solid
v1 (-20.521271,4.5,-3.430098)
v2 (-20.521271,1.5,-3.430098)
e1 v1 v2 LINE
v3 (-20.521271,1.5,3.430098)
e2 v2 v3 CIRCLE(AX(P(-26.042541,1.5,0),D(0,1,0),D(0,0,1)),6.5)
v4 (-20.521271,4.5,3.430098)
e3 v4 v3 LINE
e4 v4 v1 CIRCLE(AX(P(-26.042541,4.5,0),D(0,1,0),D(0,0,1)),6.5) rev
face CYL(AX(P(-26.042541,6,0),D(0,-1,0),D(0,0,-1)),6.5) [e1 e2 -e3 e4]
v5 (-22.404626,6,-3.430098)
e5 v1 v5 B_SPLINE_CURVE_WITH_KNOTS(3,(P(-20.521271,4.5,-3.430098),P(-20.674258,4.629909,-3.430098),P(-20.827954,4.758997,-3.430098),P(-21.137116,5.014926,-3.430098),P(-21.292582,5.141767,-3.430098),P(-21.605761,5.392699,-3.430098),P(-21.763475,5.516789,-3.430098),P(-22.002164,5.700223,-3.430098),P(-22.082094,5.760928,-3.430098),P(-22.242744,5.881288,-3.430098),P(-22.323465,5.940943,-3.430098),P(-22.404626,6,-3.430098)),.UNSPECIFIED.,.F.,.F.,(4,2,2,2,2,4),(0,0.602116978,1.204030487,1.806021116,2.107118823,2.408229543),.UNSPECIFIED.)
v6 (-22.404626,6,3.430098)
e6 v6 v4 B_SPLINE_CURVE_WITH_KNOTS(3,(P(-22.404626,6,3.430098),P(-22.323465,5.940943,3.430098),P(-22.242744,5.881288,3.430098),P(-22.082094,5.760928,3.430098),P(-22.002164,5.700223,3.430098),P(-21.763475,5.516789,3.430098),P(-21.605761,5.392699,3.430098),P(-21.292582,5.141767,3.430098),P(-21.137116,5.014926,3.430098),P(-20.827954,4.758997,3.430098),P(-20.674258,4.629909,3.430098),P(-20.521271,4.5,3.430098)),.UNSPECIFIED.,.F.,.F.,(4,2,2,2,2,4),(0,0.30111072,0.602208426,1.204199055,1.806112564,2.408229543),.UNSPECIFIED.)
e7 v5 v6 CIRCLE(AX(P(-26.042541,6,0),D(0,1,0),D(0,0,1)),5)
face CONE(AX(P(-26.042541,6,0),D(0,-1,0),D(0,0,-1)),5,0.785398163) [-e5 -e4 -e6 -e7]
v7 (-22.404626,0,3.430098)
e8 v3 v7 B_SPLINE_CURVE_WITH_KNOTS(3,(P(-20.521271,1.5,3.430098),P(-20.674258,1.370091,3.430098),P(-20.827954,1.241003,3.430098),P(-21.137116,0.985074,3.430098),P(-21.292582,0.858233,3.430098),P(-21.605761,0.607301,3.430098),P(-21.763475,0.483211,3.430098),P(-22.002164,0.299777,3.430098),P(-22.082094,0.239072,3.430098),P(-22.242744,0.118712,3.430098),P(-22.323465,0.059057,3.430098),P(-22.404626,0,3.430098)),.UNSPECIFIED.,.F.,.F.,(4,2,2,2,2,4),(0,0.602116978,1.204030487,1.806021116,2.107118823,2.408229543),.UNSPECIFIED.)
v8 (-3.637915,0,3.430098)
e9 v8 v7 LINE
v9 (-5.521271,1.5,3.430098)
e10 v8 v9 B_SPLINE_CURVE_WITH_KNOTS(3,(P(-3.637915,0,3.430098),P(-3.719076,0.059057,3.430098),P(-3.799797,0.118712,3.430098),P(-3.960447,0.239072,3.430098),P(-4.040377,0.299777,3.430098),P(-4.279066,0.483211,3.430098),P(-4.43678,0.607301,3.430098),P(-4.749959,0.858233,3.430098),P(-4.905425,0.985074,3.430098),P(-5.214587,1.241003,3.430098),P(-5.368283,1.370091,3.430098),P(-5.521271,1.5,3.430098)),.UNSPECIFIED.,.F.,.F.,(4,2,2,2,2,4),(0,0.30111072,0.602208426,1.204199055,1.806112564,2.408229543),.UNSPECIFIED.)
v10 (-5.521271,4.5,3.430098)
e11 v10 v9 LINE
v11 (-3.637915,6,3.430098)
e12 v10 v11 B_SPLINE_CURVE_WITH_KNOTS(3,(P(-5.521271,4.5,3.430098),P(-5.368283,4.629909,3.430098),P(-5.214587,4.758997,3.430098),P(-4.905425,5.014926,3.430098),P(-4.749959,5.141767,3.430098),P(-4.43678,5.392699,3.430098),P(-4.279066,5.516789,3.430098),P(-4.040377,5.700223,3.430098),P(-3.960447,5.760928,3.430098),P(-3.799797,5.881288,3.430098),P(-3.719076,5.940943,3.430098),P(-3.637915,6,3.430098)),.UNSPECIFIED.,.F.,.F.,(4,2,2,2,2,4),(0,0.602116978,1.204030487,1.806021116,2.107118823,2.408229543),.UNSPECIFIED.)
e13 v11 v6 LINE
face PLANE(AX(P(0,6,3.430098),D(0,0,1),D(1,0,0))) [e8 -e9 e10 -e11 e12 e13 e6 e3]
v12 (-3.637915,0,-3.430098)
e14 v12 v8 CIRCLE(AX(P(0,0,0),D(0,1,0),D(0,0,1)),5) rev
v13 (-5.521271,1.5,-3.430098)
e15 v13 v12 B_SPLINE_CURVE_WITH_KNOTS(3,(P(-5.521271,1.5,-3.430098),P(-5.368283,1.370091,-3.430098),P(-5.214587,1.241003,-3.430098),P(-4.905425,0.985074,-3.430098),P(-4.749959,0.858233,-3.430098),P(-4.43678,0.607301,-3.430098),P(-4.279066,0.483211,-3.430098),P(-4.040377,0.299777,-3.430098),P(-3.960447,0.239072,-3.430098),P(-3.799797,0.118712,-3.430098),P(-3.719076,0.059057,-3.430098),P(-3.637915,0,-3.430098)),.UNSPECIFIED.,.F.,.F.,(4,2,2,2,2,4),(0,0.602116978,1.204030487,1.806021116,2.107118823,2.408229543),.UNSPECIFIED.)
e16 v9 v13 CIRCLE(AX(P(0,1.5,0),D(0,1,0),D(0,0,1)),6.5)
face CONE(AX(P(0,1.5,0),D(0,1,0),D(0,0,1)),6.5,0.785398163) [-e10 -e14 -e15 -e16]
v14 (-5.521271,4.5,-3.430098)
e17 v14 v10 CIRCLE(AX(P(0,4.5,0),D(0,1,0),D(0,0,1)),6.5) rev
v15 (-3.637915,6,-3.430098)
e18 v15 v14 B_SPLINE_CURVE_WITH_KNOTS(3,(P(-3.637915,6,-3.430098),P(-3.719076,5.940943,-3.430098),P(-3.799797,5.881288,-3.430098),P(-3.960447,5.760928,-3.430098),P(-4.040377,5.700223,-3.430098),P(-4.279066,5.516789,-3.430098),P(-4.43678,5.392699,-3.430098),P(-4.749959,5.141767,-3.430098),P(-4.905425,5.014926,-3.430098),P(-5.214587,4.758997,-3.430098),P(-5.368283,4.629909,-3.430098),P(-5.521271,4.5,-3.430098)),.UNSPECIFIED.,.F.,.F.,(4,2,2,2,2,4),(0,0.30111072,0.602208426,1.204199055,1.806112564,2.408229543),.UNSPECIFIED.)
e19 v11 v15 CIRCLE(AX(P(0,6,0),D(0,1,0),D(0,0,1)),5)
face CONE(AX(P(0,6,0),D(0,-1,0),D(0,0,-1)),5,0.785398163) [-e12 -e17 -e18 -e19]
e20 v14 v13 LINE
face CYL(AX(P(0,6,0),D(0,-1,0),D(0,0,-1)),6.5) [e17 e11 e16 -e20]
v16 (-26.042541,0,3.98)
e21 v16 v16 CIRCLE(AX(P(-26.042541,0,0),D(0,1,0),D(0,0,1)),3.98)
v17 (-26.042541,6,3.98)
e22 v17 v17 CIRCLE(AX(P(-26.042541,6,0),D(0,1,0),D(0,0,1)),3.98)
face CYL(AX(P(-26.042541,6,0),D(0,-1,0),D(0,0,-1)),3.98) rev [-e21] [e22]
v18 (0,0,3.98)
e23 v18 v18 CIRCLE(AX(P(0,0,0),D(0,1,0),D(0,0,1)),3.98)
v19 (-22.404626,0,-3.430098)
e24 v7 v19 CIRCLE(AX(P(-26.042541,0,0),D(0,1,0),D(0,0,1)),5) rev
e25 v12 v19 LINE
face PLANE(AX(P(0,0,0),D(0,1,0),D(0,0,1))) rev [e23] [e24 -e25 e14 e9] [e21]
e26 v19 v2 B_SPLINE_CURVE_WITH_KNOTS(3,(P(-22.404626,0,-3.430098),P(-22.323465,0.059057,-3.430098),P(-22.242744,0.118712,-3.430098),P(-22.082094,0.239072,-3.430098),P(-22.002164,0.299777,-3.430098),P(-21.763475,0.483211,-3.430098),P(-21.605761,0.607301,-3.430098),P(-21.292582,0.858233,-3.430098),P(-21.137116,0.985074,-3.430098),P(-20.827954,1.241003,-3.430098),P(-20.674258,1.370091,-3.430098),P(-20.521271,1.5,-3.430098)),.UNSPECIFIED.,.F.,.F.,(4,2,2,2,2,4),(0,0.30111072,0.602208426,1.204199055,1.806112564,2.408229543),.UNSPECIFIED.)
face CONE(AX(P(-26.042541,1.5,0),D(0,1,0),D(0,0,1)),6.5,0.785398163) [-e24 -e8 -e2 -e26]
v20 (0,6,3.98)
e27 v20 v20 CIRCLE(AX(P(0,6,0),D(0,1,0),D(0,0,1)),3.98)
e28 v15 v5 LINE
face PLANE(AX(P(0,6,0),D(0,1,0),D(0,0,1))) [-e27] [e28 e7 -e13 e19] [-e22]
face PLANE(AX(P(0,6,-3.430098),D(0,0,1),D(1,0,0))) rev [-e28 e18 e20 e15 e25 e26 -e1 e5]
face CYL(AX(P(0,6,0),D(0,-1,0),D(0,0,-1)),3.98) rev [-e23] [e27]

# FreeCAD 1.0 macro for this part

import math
import FreeCAD as App
import Part
import Sketcher

V = App.Vector
Q = App.Units.Quantity


def edges_at(feature, points):
    """Names of the edges that pass closest to the given points."""
    edges = feature.Shape.Edges
    near = lambda p: min(range(len(edges)), key=lambda i: edges[i].distToShape(Part.Vertex(*p))[0])
    return sorted({f"Edge{near(p) + 1}" for p in points})

doc = App.newDocument("Part")
body = doc.addObject("PartDesign::Body", "Body")

# Sketch on XZ plane
sketch1 = body.newObject("Sketcher::SketchObject", "Sketch")
sketch1.AttachmentSupport = (doc.getObject("XZ_Plane"), [""])
sketch1.MapMode = "FlatFace"
sketch1.addGeometry([
    Part.LineSegment(V(-5.5, -3.4, 0), V(-20.5, -3.4, 0)),  # 0
    Part.ArcOfCircle(Part.Circle(V(-26, 0, 0), V(0, 0, 1), 6.5), math.radians(32), math.radians(328)),  # 1
    Part.LineSegment(V(-20.5, 3.4, 0), V(-5.5, 3.4, 0)),  # 2
    Part.ArcOfCircle(Part.Circle(V(0, 0, 0), V(0, 0, 1), 6.5), math.radians(-148), math.radians(148)),  # 3
    Part.Circle(V(-26, 0, 0), V(0, 0, 1), 4),  # 4
    Part.Circle(V(0, 0, 0), V(0, 0, 1), 4),  # 5
], False)
sketch1.addConstraint([
    Sketcher.Constraint("Coincident", 0, 2, 1, 2),
    Sketcher.Constraint("Coincident", 1, 1, 2, 1),
    Sketcher.Constraint("Coincident", 2, 2, 3, 2),
    Sketcher.Constraint("Coincident", 3, 1, 0, 1),
    Sketcher.Constraint("Horizontal", 0),
    Sketcher.Constraint("Horizontal", 2),
    Sketcher.Constraint("Coincident", 3, 3, -1, 1),
    Sketcher.Constraint("Coincident", 5, 3, -1, 1),
    Sketcher.Constraint("Coincident", 4, 3, 1, 3),
    Sketcher.Constraint("Equal", 1, 3),
    Sketcher.Constraint("Equal", 4, 5),
    Sketcher.Constraint("Symmetric", 0, 2, 1, 1, -1),
    Sketcher.Constraint("Radius", 1, Q("6.5 mm")),
    Sketcher.Constraint("Diameter", 4, Q("7.96 mm")),
    Sketcher.Constraint("DistanceX", 0, 2, 0, 1, Q("15 mm")),
    Sketcher.Constraint("DistanceX", 1, 3, -1, 1, Q("26.042541 mm")),
])
pad1 = body.newObject("PartDesign::Pad", "Pad")
pad1.Profile = sketch1
pad1.Length = 6
pad1.Reversed = True
doc.recompute()

chamfer = body.newObject("PartDesign::Chamfer", "Chamfer")
chamfer.Base = (pad1, edges_at(pad1, [
    (-32.543, 0, 0),
    (-32.543, 6, 0),
    (6.5, 6, 0),
    (6.5, 0, 0),
]))
chamfer.Size = 1.5

doc.recompute()
